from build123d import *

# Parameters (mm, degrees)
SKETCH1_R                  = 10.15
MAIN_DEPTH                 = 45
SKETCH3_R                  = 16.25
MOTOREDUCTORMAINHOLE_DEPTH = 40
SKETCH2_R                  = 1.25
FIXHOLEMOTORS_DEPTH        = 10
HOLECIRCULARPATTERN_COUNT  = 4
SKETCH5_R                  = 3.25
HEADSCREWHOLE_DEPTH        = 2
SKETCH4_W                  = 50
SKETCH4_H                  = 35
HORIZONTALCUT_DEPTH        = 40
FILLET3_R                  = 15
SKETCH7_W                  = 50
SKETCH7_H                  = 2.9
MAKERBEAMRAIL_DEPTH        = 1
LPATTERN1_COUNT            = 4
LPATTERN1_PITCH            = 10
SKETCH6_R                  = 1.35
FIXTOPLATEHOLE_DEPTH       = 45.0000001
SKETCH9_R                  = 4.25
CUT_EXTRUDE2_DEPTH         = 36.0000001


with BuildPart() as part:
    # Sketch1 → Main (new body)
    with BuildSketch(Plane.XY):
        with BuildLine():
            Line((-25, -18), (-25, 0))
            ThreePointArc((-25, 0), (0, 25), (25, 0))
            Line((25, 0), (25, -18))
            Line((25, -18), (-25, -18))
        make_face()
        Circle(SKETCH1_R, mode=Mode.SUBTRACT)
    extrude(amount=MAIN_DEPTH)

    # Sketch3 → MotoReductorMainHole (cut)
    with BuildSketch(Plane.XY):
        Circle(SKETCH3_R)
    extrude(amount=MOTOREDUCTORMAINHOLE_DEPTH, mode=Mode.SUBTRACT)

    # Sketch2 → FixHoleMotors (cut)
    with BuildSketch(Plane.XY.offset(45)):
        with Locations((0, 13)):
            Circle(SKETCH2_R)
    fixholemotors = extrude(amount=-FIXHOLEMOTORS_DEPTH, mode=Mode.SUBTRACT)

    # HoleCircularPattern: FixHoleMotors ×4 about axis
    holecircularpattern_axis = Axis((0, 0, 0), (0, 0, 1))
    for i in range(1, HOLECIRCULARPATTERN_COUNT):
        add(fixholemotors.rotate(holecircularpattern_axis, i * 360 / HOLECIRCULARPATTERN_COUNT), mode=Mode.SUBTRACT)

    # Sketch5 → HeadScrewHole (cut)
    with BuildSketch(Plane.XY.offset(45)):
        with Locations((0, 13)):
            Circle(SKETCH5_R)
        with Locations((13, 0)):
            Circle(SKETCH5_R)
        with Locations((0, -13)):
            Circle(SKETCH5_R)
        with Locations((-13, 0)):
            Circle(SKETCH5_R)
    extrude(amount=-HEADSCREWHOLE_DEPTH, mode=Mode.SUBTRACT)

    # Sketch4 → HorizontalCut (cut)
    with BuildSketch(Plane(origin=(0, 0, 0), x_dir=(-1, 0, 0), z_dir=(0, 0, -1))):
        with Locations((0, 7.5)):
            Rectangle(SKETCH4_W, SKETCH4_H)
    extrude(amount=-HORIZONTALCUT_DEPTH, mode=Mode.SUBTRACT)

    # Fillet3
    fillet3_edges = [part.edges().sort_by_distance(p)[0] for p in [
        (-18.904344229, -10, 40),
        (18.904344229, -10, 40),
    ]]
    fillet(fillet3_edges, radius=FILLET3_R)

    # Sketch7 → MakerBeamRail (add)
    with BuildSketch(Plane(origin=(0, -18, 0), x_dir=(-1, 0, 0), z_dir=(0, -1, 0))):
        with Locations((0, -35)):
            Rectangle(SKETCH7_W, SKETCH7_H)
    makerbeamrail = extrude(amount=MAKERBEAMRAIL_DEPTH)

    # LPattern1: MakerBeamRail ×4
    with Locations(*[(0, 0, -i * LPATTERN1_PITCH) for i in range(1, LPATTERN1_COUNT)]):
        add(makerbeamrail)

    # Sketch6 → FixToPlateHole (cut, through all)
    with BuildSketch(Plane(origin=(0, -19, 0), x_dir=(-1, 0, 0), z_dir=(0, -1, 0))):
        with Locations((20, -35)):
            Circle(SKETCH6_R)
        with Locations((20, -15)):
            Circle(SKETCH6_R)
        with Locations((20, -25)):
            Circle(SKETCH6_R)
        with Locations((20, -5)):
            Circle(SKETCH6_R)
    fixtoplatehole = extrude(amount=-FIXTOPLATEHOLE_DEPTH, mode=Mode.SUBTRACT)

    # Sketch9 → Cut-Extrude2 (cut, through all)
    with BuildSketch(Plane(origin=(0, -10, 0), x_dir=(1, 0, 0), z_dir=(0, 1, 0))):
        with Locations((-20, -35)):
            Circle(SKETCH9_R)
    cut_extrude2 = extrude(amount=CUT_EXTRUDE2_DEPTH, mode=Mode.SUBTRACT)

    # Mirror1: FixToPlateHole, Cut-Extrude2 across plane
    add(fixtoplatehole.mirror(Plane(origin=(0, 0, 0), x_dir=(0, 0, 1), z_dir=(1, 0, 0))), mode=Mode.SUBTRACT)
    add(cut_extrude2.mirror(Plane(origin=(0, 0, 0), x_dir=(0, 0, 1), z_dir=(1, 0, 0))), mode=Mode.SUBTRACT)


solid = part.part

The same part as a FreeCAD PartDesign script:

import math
import FreeCAD as App
import Part
import Sketcher
from FreeCAD import Vector
Q = App.Units.Quantity


def edges_at(feature, points):
    """Names of the edges that pass closest to the given points."""
    edges = feature.Shape.Edges
    near = lambda p: min(range(len(edges)), key=lambda i: edges[i].distToShape(Part.Vertex(*p))[0])
    return sorted({f"Edge{near(p) + 1}" for p in points})


def add_polygon(sketch, points):
    """Adds a closed chain of lines whose ends are joined by coincident constraints."""
    first, n = sketch.GeometryCount, len(points)
    for a, b in zip(points, points[1:] + points[:1]):
        sketch.addGeometry(Part.LineSegment(App.Vector(*a, 0), App.Vector(*b, 0)), False)
    for i in range(n):
        sketch.addConstraint(Sketcher.Constraint("Coincident", first + i, 2, first + (i + 1) % n, 1))

doc = App.newDocument("Part")
body = doc.addObject("PartDesign::Body", "Body")

# Sketch on XY plane
sketch1 = doc.addObject("Sketcher::SketchObject", "Sketch")
body.addObject(sketch1)
sketch1.AttachmentSupport = (doc.XY_Plane, [""])
sketch1.MapMode = "FlatFace"
sketch1.addGeometry(Part.LineSegment(Vector(-25, 0, 0), Vector(-25, -18, 0)), False)
sketch1.addGeometry(Part.LineSegment(Vector(-25, -18, 0), Vector(25, -18, 0)), False)
sketch1.addGeometry(Part.LineSegment(Vector(25, -18, 0), Vector(25, 0, 0)), False)
sketch1.addGeometry(Part.ArcOfCircle(Part.Circle(Vector(0, 0, 0), Vector(0, 0, 1), 25), math.radians(0), math.radians(180)), False)
sketch1.addGeometry(Part.Circle(Vector(0, 0, 0), Vector(0, 0, 1), 10), False)
sketch1.addConstraint(Sketcher.Constraint("Coincident", 0, 2, 1, 1))
sketch1.addConstraint(Sketcher.Constraint("Coincident", 1, 2, 2, 1))
sketch1.addConstraint(Sketcher.Constraint("Tangent", 2, 2, 3, 1))
sketch1.addConstraint(Sketcher.Constraint("Tangent", 3, 2, 0, 1))
sketch1.addConstraint(Sketcher.Constraint("Vertical", 0))
sketch1.addConstraint(Sketcher.Constraint("Horizontal", 1))
sketch1.addConstraint(Sketcher.Constraint("Vertical", 2))
sketch1.addConstraint(Sketcher.Constraint("Coincident", 3, 3, -1, 1))
sketch1.addConstraint(Sketcher.Constraint("Coincident", 4, 3, -1, 1))
sketch1.addConstraint(Sketcher.Constraint("Radius", 3, Q("25 mm")))
sketch1.addConstraint(Sketcher.Constraint("Diameter", 4, Q("20.3 mm")))
sketch1.addConstraint(Sketcher.Constraint("DistanceY", 0, 2, 0, 1, Q("18 mm")))
pad1 = doc.addObject("PartDesign::Pad", "Pad")
body.addObject(pad1)
pad1.Profile = sketch1
pad1.Length = 45

# Sketch on XY plane
sketch2 = doc.addObject("Sketcher::SketchObject", "Sketch001")
body.addObject(sketch2)
sketch2.AttachmentSupport = (doc.XY_Plane, [""])
sketch2.MapMode = "FlatFace"
sketch2.addGeometry(Part.Circle(Vector(0, 0, 0), Vector(0, 0, 1), 16), False)
sketch2.addConstraint(Sketcher.Constraint("Coincident", 0, 3, -1, 1))
sketch2.addConstraint(Sketcher.Constraint("Diameter", 0, Q("32.5 mm")))
pocket1 = doc.addObject("PartDesign::Pocket", "Pocket")
body.addObject(pocket1)
pocket1.Profile = sketch2
pocket1.Length = 40
pocket1.Reversed = True

# Sketch on XY plane
sketch3 = doc.addObject("Sketcher::SketchObject", "Sketch002")
body.addObject(sketch3)
sketch3.AttachmentSupport = (doc.XY_Plane, [""])
sketch3.MapMode = "FlatFace"
sketch3.AttachmentOffset = App.Placement(Vector(0, 0, 45), App.Rotation())
sketch3.addGeometry(Part.Circle(Vector(0, 13, 0), Vector(0, 0, 1), 1.2), False)
sketch3.addConstraint(Sketcher.Constraint("PointOnObject", 0, 3, -2))
sketch3.addConstraint(Sketcher.Constraint("Diameter", 0, Q("2.5 mm")))
sketch3.addConstraint(Sketcher.Constraint("DistanceY", -1, 1, 0, 3, Q("13 mm")))
pocket2 = doc.addObject("PartDesign::Pocket", "Pocket001")
body.addObject(pocket2)
pocket2.Profile = sketch3
pocket2.Length = 10
doc.recompute()

polarpattern = doc.addObject("PartDesign::PolarPattern", "PolarPattern")
body.addObject(polarpattern)
polarpattern.Originals = [pocket2]
polarpattern.Axis = (doc.Z_Axis, [""])
polarpattern.Angle = 360
polarpattern.Occurrences = 4
body.Tip = polarpattern

# Sketch on XY plane
sketch4 = doc.addObject("Sketcher::SketchObject", "Sketch003")
body.addObject(sketch4)
sketch4.AttachmentSupport = (doc.XY_Plane, [""])
sketch4.MapMode = "FlatFace"
sketch4.AttachmentOffset = App.Placement(Vector(0, 0, 45), App.Rotation())
sketch4.addGeometry(Part.Circle(Vector(0, 13, 0), Vector(0, 0, 1), 3.2), False)
sketch4.addGeometry(Part.Circle(Vector(13, 0, 0), Vector(0, 0, 1), 3.2), False)
sketch4.addGeometry(Part.Circle(Vector(0, -13, 0), Vector(0, 0, 1), 3.2), False)
sketch4.addGeometry(Part.Circle(Vector(-13, 0, 0), Vector(0, 0, 1), 3.2), False)
sketch4.addConstraint(Sketcher.Constraint("Equal", 0, 1))
sketch4.addConstraint(Sketcher.Constraint("Equal", 1, 2))
sketch4.addConstraint(Sketcher.Constraint("Equal", 2, 3))
sketch4.addConstraint(Sketcher.Constraint("Symmetric", 0, 3, 2, 3, -1, 1))
sketch4.addConstraint(Sketcher.Constraint("Symmetric", 1, 3, 3, 3, -1, 1))
sketch4.addConstraint(Sketcher.Constraint("PointOnObject", 0, 3, -2))
sketch4.addConstraint(Sketcher.Constraint("PointOnObject", 1, 3, -1))
sketch4.addConstraint(Sketcher.Constraint("Diameter", 0, Q("6.5 mm")))
sketch4.addConstraint(Sketcher.Constraint("DistanceY", -1, 1, 0, 3, Q("13 mm")))
sketch4.addConstraint(Sketcher.Constraint("DistanceX", -1, 1, 1, 3, Q("13 mm")))
pocket3 = doc.addObject("PartDesign::Pocket", "Pocket002")
body.addObject(pocket3)
pocket3.Profile = sketch4
pocket3.Length = 2

# Sketch on XY plane
sketch5 = doc.addObject("Sketcher::SketchObject", "Sketch004")
body.addObject(sketch5)
sketch5.AttachmentSupport = (doc.XY_Plane, [""])
sketch5.MapMode = "FlatFace"
add_polygon(sketch5, [(25, 25), (25, -10), (-25, -10), (-25, 25)])  # lines 0-3
sketch5.addConstraint(Sketcher.Constraint("Vertical", 0))
sketch5.addConstraint(Sketcher.Constraint("Horizontal", 1))
sketch5.addConstraint(Sketcher.Constraint("Vertical", 2))
sketch5.addConstraint(Sketcher.Constraint("Horizontal", 3))
sketch5.addConstraint(Sketcher.Constraint("DistanceX", 1, 2, 1, 1, Q("50 mm")))
sketch5.addConstraint(Sketcher.Constraint("DistanceY", 0, 2, 0, 1, Q("35 mm")))
sketch5.addConstraint(Sketcher.Constraint("DistanceX", -1, 1, 0, 2, Q("25 mm")))
sketch5.addConstraint(Sketcher.Constraint("DistanceY", 0, 2, -1, 1, Q("10 mm")))
pocket4 = doc.addObject("PartDesign::Pocket", "Pocket003")
body.addObject(pocket4)
pocket4.Profile = sketch5
pocket4.Length = 40
pocket4.Reversed = True
doc.recompute()

fillet = doc.addObject("PartDesign::Fillet", "Fillet")
body.addObject(fillet)
fillet.Base = (pocket4, edges_at(pocket4, [(-18.904, -10, 40), (18.904, -10, 40)]))
fillet.Radius = 15

# Sketch on XZ plane
sketch6 = doc.addObject("Sketcher::SketchObject", "Sketch005")
body.addObject(sketch6)
sketch6.AttachmentSupport = (doc.XZ_Plane, [""])
sketch6.MapMode = "FlatFace"
sketch6.AttachmentOffset = App.Placement(Vector(0, 0, 18), App.Rotation())
add_polygon(sketch6, [(25, 33.5), (25, 36.5), (-25, 36.5), (-25, 33.5)])  # lines 0-3
sketch6.addConstraint(Sketcher.Constraint("Vertical", 0))
sketch6.addConstraint(Sketcher.Constraint("Horizontal", 1))
sketch6.addConstraint(Sketcher.Constraint("Vertical", 2))
sketch6.addConstraint(Sketcher.Constraint("Horizontal", 3))
sketch6.addConstraint(Sketcher.Constraint("DistanceX", 1, 2, 1, 1, Q("50 mm")))
sketch6.addConstraint(Sketcher.Constraint("DistanceY", 0, 1, 0, 2, Q("2.9 mm")))
sketch6.addConstraint(Sketcher.Constraint("DistanceX", -1, 1, 0, 2, Q("25 mm")))
sketch6.addConstraint(Sketcher.Constraint("DistanceY", -1, 1, 0, 2, Q("36.45 mm")))
pad2 = doc.addObject("PartDesign::Pad", "Pad001")
body.addObject(pad2)
pad2.Profile = sketch6
pad2.Length = 1
doc.recompute()

linearpattern = doc.addObject("PartDesign::LinearPattern", "LinearPattern")
body.addObject(linearpattern)
linearpattern.Originals = [pad2]
linearpattern.Direction = (doc.Z_Axis, [""])
linearpattern.Mode = "offset"
linearpattern.Offset = 10
linearpattern.Occurrences = 4
linearpattern.Reversed = True
body.Tip = linearpattern

# Sketch on XZ plane
sketch7 = doc.addObject("Sketcher::SketchObject", "Sketch006")
body.addObject(sketch7)
sketch7.AttachmentSupport = (doc.XZ_Plane, [""])
sketch7.MapMode = "FlatFace"
sketch7.AttachmentOffset = App.Placement(Vector(0, 0, 19), App.Rotation())
sketch7.addGeometry(Part.Circle(Vector(-20, 35, 0), Vector(0, 0, 1), 1.4), False)
sketch7.addGeometry(Part.Circle(Vector(-20, 15, 0), Vector(0, 0, 1), 1.4), False)
sketch7.addGeometry(Part.Circle(Vector(-20, 25, 0), Vector(0, 0, 1), 1.4), False)
sketch7.addGeometry(Part.Circle(Vector(-20, 5, 0), Vector(0, 0, 1), 1.4), False)
sketch7.addConstraint(Sketcher.Constraint("Equal", 0, 1))
sketch7.addConstraint(Sketcher.Constraint("Equal", 1, 2))
sketch7.addConstraint(Sketcher.Constraint("Equal", 2, 3))
sketch7.addConstraint(Sketcher.Constraint("Vertical", 0, 3, 1, 3))
sketch7.addConstraint(Sketcher.Constraint("Vertical", 1, 3, 2, 3))
sketch7.addConstraint(Sketcher.Constraint("Vertical", 2, 3, 3, 3))
sketch7.addConstraint(Sketcher.Constraint("Diameter", 0, Q("2.7 mm")))
sketch7.addConstraint(Sketcher.Constraint("DistanceX", 0, 3, -1, 1, Q("20 mm")))
sketch7.addConstraint(Sketcher.Constraint("DistanceY", -1, 1, 0, 3, Q("35 mm")))
sketch7.addConstraint(Sketcher.Constraint("DistanceY", -1, 1, 1, 3, Q("15 mm")))
sketch7.addConstraint(Sketcher.Constraint("DistanceY", -1, 1, 2, 3, Q("25 mm")))
sketch7.addConstraint(Sketcher.Constraint("DistanceY", -1, 1, 3, 3, Q("5 mm")))
pocket5 = doc.addObject("PartDesign::Pocket", "Pocket004")
body.addObject(pocket5)
pocket5.Profile = sketch7
pocket5.Type = "ThroughAll"

# Sketch on XZ plane
sketch8 = doc.addObject("Sketcher::SketchObject", "Sketch007")
body.addObject(sketch8)
sketch8.AttachmentSupport = (doc.XZ_Plane, [""])
sketch8.MapMode = "FlatFace"
sketch8.AttachmentOffset = App.Placement(Vector(0, 0, 10), App.Rotation())
sketch8.addGeometry(Part.Circle(Vector(-20, 35, 0), Vector(0, 0, 1), 4.2), False)
sketch8.addConstraint(Sketcher.Constraint("Diameter", 0, Q("8.5 mm")))
sketch8.addConstraint(Sketcher.Constraint("DistanceX", 0, 3, -1, 1, Q("20 mm")))
sketch8.addConstraint(Sketcher.Constraint("DistanceY", -1, 1, 0, 3, Q("35 mm")))
pocket6 = doc.addObject("PartDesign::Pocket", "Pocket005")
body.addObject(pocket6)
pocket6.Profile = sketch8
pocket6.Type = "ThroughAll"
doc.recompute()

mirrored = doc.addObject("PartDesign::Mirrored", "Mirrored")
body.addObject(mirrored)
mirrored.Originals = [pocket5, pocket6]
mirrored.MirrorPlane = (doc.YZ_Plane, [""])
body.Tip = mirrored

doc.recompute()
